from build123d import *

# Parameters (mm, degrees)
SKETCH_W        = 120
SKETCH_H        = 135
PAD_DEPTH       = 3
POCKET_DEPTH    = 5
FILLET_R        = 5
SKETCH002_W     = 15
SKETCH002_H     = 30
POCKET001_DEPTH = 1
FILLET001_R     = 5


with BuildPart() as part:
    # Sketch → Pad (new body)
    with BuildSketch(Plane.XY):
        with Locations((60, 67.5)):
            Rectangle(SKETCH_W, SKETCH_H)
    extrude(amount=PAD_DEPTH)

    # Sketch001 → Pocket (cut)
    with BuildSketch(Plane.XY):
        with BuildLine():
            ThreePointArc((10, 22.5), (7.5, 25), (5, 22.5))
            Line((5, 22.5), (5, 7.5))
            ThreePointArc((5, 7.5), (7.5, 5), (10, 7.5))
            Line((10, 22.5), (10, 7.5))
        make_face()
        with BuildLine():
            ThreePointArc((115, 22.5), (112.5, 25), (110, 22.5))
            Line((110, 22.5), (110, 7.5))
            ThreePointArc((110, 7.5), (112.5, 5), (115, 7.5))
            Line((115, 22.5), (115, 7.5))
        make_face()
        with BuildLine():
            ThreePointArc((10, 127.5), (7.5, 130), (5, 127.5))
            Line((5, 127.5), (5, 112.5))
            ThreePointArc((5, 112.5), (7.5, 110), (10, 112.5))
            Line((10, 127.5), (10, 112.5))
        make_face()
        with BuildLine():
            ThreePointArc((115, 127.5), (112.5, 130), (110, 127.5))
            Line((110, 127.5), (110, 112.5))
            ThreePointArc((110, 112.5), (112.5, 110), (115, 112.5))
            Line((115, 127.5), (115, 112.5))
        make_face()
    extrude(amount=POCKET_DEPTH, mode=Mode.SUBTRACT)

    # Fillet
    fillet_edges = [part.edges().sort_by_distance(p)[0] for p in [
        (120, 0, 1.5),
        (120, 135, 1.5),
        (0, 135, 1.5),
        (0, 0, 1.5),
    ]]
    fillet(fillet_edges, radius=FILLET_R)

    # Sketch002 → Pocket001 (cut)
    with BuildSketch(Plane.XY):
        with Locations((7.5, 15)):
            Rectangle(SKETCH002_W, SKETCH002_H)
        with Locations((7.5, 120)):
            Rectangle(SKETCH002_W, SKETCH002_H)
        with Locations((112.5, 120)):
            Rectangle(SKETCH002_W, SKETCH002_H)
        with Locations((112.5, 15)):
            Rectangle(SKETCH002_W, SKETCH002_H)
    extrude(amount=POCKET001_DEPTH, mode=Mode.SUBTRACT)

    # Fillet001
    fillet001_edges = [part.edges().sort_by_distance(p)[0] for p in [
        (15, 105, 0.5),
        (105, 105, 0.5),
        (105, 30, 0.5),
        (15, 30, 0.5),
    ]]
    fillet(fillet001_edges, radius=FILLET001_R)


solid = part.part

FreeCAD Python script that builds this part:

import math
import FreeCAD as App
import Part
import Sketcher


def edges_at(feature, points):
    """Names of the edges that pass closest to the given points."""
    edges = feature.Shape.Edges
    near = lambda p: min(range(len(edges)), key=lambda i: edges[i].distToShape(Part.Vertex(*p))[0])
    return sorted({f"Edge{near(p) + 1}" for p in points})

doc = App.newDocument("Part")
params = doc.addObject("Spreadsheet::Sheet", "Params")
for row, (alias, value) in enumerate([
    ("sketch1_width", "120 mm"),
    ("sketch1_height", "135 mm"),
    ("pad1_length", "3 mm"),
    ("sketch2_radius", "2.5 mm"),
    ("sketch2_height", "15 mm"),
    ("pocket1_length", "5 mm"),
    ("fillet_radius", "5 mm"),
    ("sketch3_width", "15 mm"),
    ("sketch3_height", "30 mm"),
    ("pocket2_length", "1 mm"),
    ("fillet2_radius", "5 mm"),
], start=1):
    params.set(f"A{row}", alias)
    params.set(f"B{row}", "=" + value)
    params.setAlias(f"B{row}", alias)

body = doc.addObject("PartDesign::Body", "Body")

# Sketch on XY plane
sketch1 = doc.addObject("Sketcher::SketchObject", "Sketch")
body.addObject(sketch1)
sketch1.AttachmentSupport = (doc.XY_Plane, [""])
sketch1.MapMode = "FlatFace"
sketch1.addGeometry(Part.LineSegment(App.Vector(0, 135, 0), App.Vector(0, 0, 0)), False)
sketch1.addGeometry(Part.LineSegment(App.Vector(0, 0, 0), App.Vector(120, 0, 0)), False)
sketch1.addGeometry(Part.LineSegment(App.Vector(120, 0, 0), App.Vector(120, 135, 0)), False)
sketch1.addGeometry(Part.LineSegment(App.Vector(120, 135, 0), App.Vector(0, 135, 0)), False)
sketch1.addConstraint(Sketcher.Constraint("Coincident", 0, 2, 1, 1))
sketch1.addConstraint(Sketcher.Constraint("Coincident", 1, 2, 2, 1))
sketch1.addConstraint(Sketcher.Constraint("Coincident", 2, 2, 3, 1))
sketch1.addConstraint(Sketcher.Constraint("Coincident", 3, 2, 0, 1))
sketch1.addConstraint(Sketcher.Constraint("Vertical", 0))
sketch1.addConstraint(Sketcher.Constraint("Horizontal", 1))
sketch1.addConstraint(Sketcher.Constraint("Vertical", 2))
sketch1.addConstraint(Sketcher.Constraint("Horizontal", 3))
sketch1.addConstraint(Sketcher.Constraint("Coincident", 0, 2, -1, 1))
sketch1.addConstraint(Sketcher.Constraint("DistanceX", 1, 1, 1, 2, 120.0))
sketch1.addConstraint(Sketcher.Constraint("DistanceY", 0, 2, 0, 1, 135.0))
sketch1.setExpression("Constraints[9]", "Params.sketch1_width")
sketch1.setExpression("Constraints[10]", "Params.sketch1_height")
pad1 = doc.addObject("PartDesign::Pad", "Pad")
body.addObject(pad1)
pad1.Profile = sketch1
pad1.setExpression("Length", "Params.pad1_length")

# Sketch on XY plane
sketch2 = doc.addObject("Sketcher::SketchObject", "Sketch001")
body.addObject(sketch2)
sketch2.AttachmentSupport = (doc.XY_Plane, [""])
sketch2.MapMode = "FlatFace"
sketch2.addGeometry(Part.ArcOfCircle(Part.Circle(App.Vector(7.5, 22.5, 0), App.Vector(0, 0, 1), 2.5), math.radians(0), math.radians(180)), False)
sketch2.addGeometry(Part.LineSegment(App.Vector(5, 22.5, 0), App.Vector(5, 7.5, 0)), False)
sketch2.addGeometry(Part.ArcOfCircle(Part.Circle(App.Vector(7.5, 7.5, 0), App.Vector(0, 0, 1), 2.5), math.radians(180), math.radians(360)), False)
sketch2.addGeometry(Part.LineSegment(App.Vector(10, 7.5, 0), App.Vector(10, 22.5, 0)), False)
sketch2.addGeometry(Part.ArcOfCircle(Part.Circle(App.Vector(112.5, 22.5, 0), App.Vector(0, 0, 1), 2.5), math.radians(0), math.radians(180)), False)
sketch2.addGeometry(Part.LineSegment(App.Vector(110, 22.5, 0), App.Vector(110, 7.5, 0)), False)
sketch2.addGeometry(Part.ArcOfCircle(Part.Circle(App.Vector(112.5, 7.5, 0), App.Vector(0, 0, 1), 2.5), math.radians(180), math.radians(360)), False)
sketch2.addGeometry(Part.LineSegment(App.Vector(115, 7.5, 0), App.Vector(115, 22.5, 0)), False)
sketch2.addGeometry(Part.ArcOfCircle(Part.Circle(App.Vector(7.5, 127.5, 0), App.Vector(0, 0, 1), 2.5), math.radians(0), math.radians(180)), False)
sketch2.addGeometry(Part.LineSegment(App.Vector(5, 127.5, 0), App.Vector(5, 112.5, 0)), False)
sketch2.addGeometry(Part.ArcOfCircle(Part.Circle(App.Vector(7.5, 112.5, 0), App.Vector(0, 0, 1), 2.5), math.radians(180), math.radians(360)), False)
sketch2.addGeometry(Part.LineSegment(App.Vector(10, 112.5, 0), App.Vector(10, 127.5, 0)), False)
sketch2.addGeometry(Part.ArcOfCircle(Part.Circle(App.Vector(112.5, 127.5, 0), App.Vector(0, 0, 1), 2.5), math.radians(0), math.radians(180)), False)
sketch2.addGeometry(Part.LineSegment(App.Vector(110, 127.5, 0), App.Vector(110, 112.5, 0)), False)
sketch2.addGeometry(Part.ArcOfCircle(Part.Circle(App.Vector(112.5, 112.5, 0), App.Vector(0, 0, 1), 2.5), math.radians(180), math.radians(360)), False)
sketch2.addGeometry(Part.LineSegment(App.Vector(115, 112.5, 0), App.Vector(115, 127.5, 0)), False)
sketch2.addConstraint(Sketcher.Constraint("Tangent", 0, 2, 1, 1))
sketch2.addConstraint(Sketcher.Constraint("Tangent", 1, 2, 2, 1))
sketch2.addConstraint(Sketcher.Constraint("Tangent", 2, 2, 3, 1))
sketch2.addConstraint(Sketcher.Constraint("Tangent", 3, 2, 0, 1))
sketch2.addConstraint(Sketcher.Constraint("Tangent", 4, 2, 5, 1))
sketch2.addConstraint(Sketcher.Constraint("Tangent", 5, 2, 6, 1))
sketch2.addConstraint(Sketcher.Constraint("Tangent", 6, 2, 7, 1))
sketch2.addConstraint(Sketcher.Constraint("Tangent", 7, 2, 4, 1))
sketch2.addConstraint(Sketcher.Constraint("Tangent", 8, 2, 9, 1))
sketch2.addConstraint(Sketcher.Constraint("Tangent", 9, 2, 10, 1))
sketch2.addConstraint(Sketcher.Constraint("Tangent", 10, 2, 11, 1))
sketch2.addConstraint(Sketcher.Constraint("Tangent", 11, 2, 8, 1))
sketch2.addConstraint(Sketcher.Constraint("Tangent", 12, 2, 13, 1))
sketch2.addConstraint(Sketcher.Constraint("Tangent", 13, 2, 14, 1))
sketch2.addConstraint(Sketcher.Constraint("Tangent", 14, 2, 15, 1))
sketch2.addConstraint(Sketcher.Constraint("Tangent", 15, 2, 12, 1))
sketch2.addConstraint(Sketcher.Constraint("Vertical", 1))
sketch2.addConstraint(Sketcher.Constraint("Vertical", 3))
sketch2.addConstraint(Sketcher.Constraint("Vertical", 5))
sketch2.addConstraint(Sketcher.Constraint("Vertical", 7))
sketch2.addConstraint(Sketcher.Constraint("Vertical", 9))
sketch2.addConstraint(Sketcher.Constraint("Vertical", 11))
sketch2.addConstraint(Sketcher.Constraint("Vertical", 13))
sketch2.addConstraint(Sketcher.Constraint("Vertical", 15))
sketch2.addConstraint(Sketcher.Constraint("Equal", 2, 4))
sketch2.addConstraint(Sketcher.Constraint("Equal", 6, 8))
sketch2.addConstraint(Sketcher.Constraint("Equal", 10, 12))
sketch2.addConstraint(Sketcher.Constraint("Horizontal", 0, 3, 4, 3))
sketch2.addConstraint(Sketcher.Constraint("Horizontal", 2, 3, 6, 3))
sketch2.addConstraint(Sketcher.Constraint("Horizontal", 8, 3, 12, 3))
sketch2.addConstraint(Sketcher.Constraint("Horizontal", 10, 3, 14, 3))
sketch2.addConstraint(Sketcher.Constraint("Vertical", 2, 3, 8, 3))
sketch2.addConstraint(Sketcher.Constraint("Vertical", 6, 3, 12, 3))
sketch2.addConstraint(Sketcher.Constraint("Equal", 7, 9))
sketch2.addConstraint(Sketcher.Constraint("Radius", 0, 2.5))
sketch2.addConstraint(Sketcher.Constraint("DistanceY", 1, 2, 1, 1, 15.0))
sketch2.addConstraint(Sketcher.Constraint("DistanceX", -1, 1, 0, 2, 5.0))
sketch2.addConstraint(Sketcher.Constraint("DistanceX", -1, 1, 4, 2, 110.0))
sketch2.addConstraint(Sketcher.Constraint("DistanceY", 0, 3, 8, 3, 105.0))
sketch2.addConstraint(Sketcher.Constraint("DistanceY", -1, 1, 0, 3, 22.5))
sketch2.setExpression("Constraints[34]", "Params.sketch2_radius")
sketch2.setExpression("Constraints[35]", "Params.sketch2_height")
pocket1 = doc.addObject("PartDesign::Pocket", "Pocket")
body.addObject(pocket1)
pocket1.Profile = sketch2
pocket1.setExpression("Length", "Params.pocket1_length")
pocket1.Reversed = True
doc.recompute()

fillet = doc.addObject("PartDesign::Fillet", "Fillet")
body.addObject(fillet)
fillet.Base = (pocket1, edges_at(pocket1, [
    (120, 0, 1.5),
    (120, 135, 1.5),
    (0, 135, 1.5),
    (0, 0, 1.5),
]))
fillet.setExpression("Radius", "Params.fillet_radius")

# Sketch on XY plane
sketch3 = doc.addObject("Sketcher::SketchObject", "Sketch002")
body.addObject(sketch3)
sketch3.AttachmentSupport = (doc.XY_Plane, [""])
sketch3.MapMode = "FlatFace"
sketch3.addGeometry(Part.LineSegment(App.Vector(0, 30, 0), App.Vector(0, 0, 0)), False)
sketch3.addGeometry(Part.LineSegment(App.Vector(0, 0, 0), App.Vector(15, 0, 0)), False)
sketch3.addGeometry(Part.LineSegment(App.Vector(15, 0, 0), App.Vector(15, 30, 0)), False)
sketch3.addGeometry(Part.LineSegment(App.Vector(15, 30, 0), App.Vector(0, 30, 0)), False)
sketch3.addGeometry(Part.LineSegment(App.Vector(0, 135, 0), App.Vector(0, 105, 0)), False)
sketch3.addGeometry(Part.LineSegment(App.Vector(0, 105, 0), App.Vector(15, 105, 0)), False)
sketch3.addGeometry(Part.LineSegment(App.Vector(15, 105, 0), App.Vector(15, 135, 0)), False)
sketch3.addGeometry(Part.LineSegment(App.Vector(15, 135, 0), App.Vector(0, 135, 0)), False)
sketch3.addGeometry(Part.LineSegment(App.Vector(105, 135, 0), App.Vector(105, 105, 0)), False)
sketch3.addGeometry(Part.LineSegment(App.Vector(105, 105, 0), App.Vector(120, 105, 0)), False)
sketch3.addGeometry(Part.LineSegment(App.Vector(120, 105, 0), App.Vector(120, 135, 0)), False)
sketch3.addGeometry(Part.LineSegment(App.Vector(120, 135, 0), App.Vector(105, 135, 0)), False)
sketch3.addGeometry(Part.LineSegment(App.Vector(105, 30, 0), App.Vector(105, 0, 0)), False)
sketch3.addGeometry(Part.LineSegment(App.Vector(105, 0, 0), App.Vector(120, 0, 0)), False)
sketch3.addGeometry(Part.LineSegment(App.Vector(120, 0, 0), App.Vector(120, 30, 0)), False)
sketch3.addGeometry(Part.LineSegment(App.Vector(120, 30, 0), App.Vector(105, 30, 0)), False)
sketch3.addConstraint(Sketcher.Constraint("Coincident", 0, 2, 1, 1))
sketch3.addConstraint(Sketcher.Constraint("Coincident", 1, 2, 2, 1))
sketch3.addConstraint(Sketcher.Constraint("Coincident", 2, 2, 3, 1))
sketch3.addConstraint(Sketcher.Constraint("Coincident", 3, 2, 0, 1))
sketch3.addConstraint(Sketcher.Constraint("Coincident", 4, 2, 5, 1))
sketch3.addConstraint(Sketcher.Constraint("Coincident", 5, 2, 6, 1))
sketch3.addConstraint(Sketcher.Constraint("Coincident", 6, 2, 7, 1))
sketch3.addConstraint(Sketcher.Constraint("Coincident", 7, 2, 4, 1))
sketch3.addConstraint(Sketcher.Constraint("Coincident", 8, 2, 9, 1))
sketch3.addConstraint(Sketcher.Constraint("Coincident", 9, 2, 10, 1))
sketch3.addConstraint(Sketcher.Constraint("Coincident", 10, 2, 11, 1))
sketch3.addConstraint(Sketcher.Constraint("Coincident", 11, 2, 8, 1))
sketch3.addConstraint(Sketcher.Constraint("Coincident", 12, 2, 13, 1))
sketch3.addConstraint(Sketcher.Constraint("Coincident", 13, 2, 14, 1))
sketch3.addConstraint(Sketcher.Constraint("Coincident", 14, 2, 15, 1))
sketch3.addConstraint(Sketcher.Constraint("Coincident", 15, 2, 12, 1))
sketch3.addConstraint(Sketcher.Constraint("Vertical", 0))
sketch3.addConstraint(Sketcher.Constraint("Horizontal", 1))
sketch3.addConstraint(Sketcher.Constraint("Vertical", 2))
sketch3.addConstraint(Sketcher.Constraint("Horizontal", 3))
sketch3.addConstraint(Sketcher.Constraint("Vertical", 4))
sketch3.addConstraint(Sketcher.Constraint("Horizontal", 5))
sketch3.addConstraint(Sketcher.Constraint("Vertical", 6))
sketch3.addConstraint(Sketcher.Constraint("Horizontal", 7))
sketch3.addConstraint(Sketcher.Constraint("Vertical", 8))
sketch3.addConstraint(Sketcher.Constraint("Horizontal", 9))
sketch3.addConstraint(Sketcher.Constraint("Vertical", 10))
sketch3.addConstraint(Sketcher.Constraint("Horizontal", 11))
sketch3.addConstraint(Sketcher.Constraint("Vertical", 12))
sketch3.addConstraint(Sketcher.Constraint("Horizontal", 13))
sketch3.addConstraint(Sketcher.Constraint("Vertical", 14))
sketch3.addConstraint(Sketcher.Constraint("Horizontal", 15))
sketch3.addConstraint(Sketcher.Constraint("Coincident", 0, 2, -1, 1))
sketch3.addConstraint(Sketcher.Constraint("PointOnObject", 4, 2, -2))
sketch3.addConstraint(Sketcher.Constraint("PointOnObject", 12, 2, -1))
sketch3.addConstraint(Sketcher.Constraint("Horizontal", 5, 2, 8, 2))
sketch3.addConstraint(Sketcher.Constraint("Horizontal", 7, 2, 10, 2))
sketch3.addConstraint(Sketcher.Constraint("Horizontal", 3, 2, 14, 2))
sketch3.addConstraint(Sketcher.Constraint("Vertical", 2, 2, 5, 2))
sketch3.addConstraint(Sketcher.Constraint("Vertical", 11, 2, 12, 2))
sketch3.addConstraint(Sketcher.Constraint("Vertical", 10, 2, 13, 2))
sketch3.addConstraint(Sketcher.Constraint("Equal", 7, 9))
sketch3.addConstraint(Sketcher.Constraint("Equal", 2, 4))
sketch3.addConstraint(Sketcher.Constraint("DistanceX", 1, 1, 1, 2, 15.0))
sketch3.addConstraint(Sketcher.Constraint("DistanceY", 0, 2, 0, 1, 30.0))
sketch3.addConstraint(Sketcher.Constraint("DistanceY", -1, 1, 4, 2, 105.0))
sketch3.addConstraint(Sketcher.Constraint("DistanceX", -1, 1, 8, 2, 105.0))
sketch3.setExpression("Constraints[43]", "Params.sketch3_width")
sketch3.setExpression("Constraints[44]", "Params.sketch3_height")
pocket2 = doc.addObject("PartDesign::Pocket", "Pocket001")
body.addObject(pocket2)
pocket2.Profile = sketch3
pocket2.setExpression("Length", "Params.pocket2_length")
pocket2.Reversed = True
doc.recompute()

fillet2 = doc.addObject("PartDesign::Fillet", "Fillet001")
body.addObject(fillet2)
fillet2.Base = (pocket2, edges_at(pocket2, [
    (15, 105, 0.5),
    (105, 105, 0.5),
    (105, 30, 0.5),
    (15, 30, 0.5),
]))
fillet2.setExpression("Radius", "Params.fillet2_radius")

doc.recompute()
